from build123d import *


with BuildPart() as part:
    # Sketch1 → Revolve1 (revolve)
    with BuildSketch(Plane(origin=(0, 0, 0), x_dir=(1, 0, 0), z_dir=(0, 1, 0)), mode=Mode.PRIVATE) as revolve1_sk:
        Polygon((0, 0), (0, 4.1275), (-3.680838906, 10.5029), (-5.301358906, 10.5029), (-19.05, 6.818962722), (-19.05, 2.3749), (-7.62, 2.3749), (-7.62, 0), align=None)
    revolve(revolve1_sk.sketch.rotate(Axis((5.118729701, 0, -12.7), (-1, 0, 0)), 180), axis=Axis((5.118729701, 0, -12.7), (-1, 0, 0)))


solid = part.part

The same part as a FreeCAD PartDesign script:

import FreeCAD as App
import Part
import Sketcher
from FreeCAD import Vector
Q = App.Units.Quantity

doc = App.newDocument("Part")
body = doc.addObject("PartDesign::Body", "Body")

# Sketch on XZ plane
sketch1 = body.newObject("Sketcher::SketchObject", "Sketch")
sketch1.AttachmentSupport = (doc.getObject("XZ_Plane"), [""])
sketch1.MapMode = "FlatFace"
sketch1.addGeometry([
    Part.LineSegment(Vector(0, 0, 0), Vector(0, -4.1, 0)),  # 0
    Part.LineSegment(Vector(0, -4.1, 0), Vector(-3.7, -10.5, 0)),  # 1
    Part.LineSegment(Vector(-3.7, -10.5, 0), Vector(-5.3, -10.5, 0)),  # 2
    Part.LineSegment(Vector(-5.3, -10.5, 0), Vector(-19.1, -6.8, 0)),  # 3
    Part.LineSegment(Vector(-19.1, -6.8, 0), Vector(-19.1, -2.4, 0)),  # 4
    Part.LineSegment(Vector(-19.1, -2.4, 0), Vector(-7.6, -2.4, 0)),  # 5
    Part.LineSegment(Vector(-7.6, -2.4, 0), Vector(-7.6, 0, 0)),  # 6
    Part.LineSegment(Vector(-7.6, 0, 0), Vector(0, 0, 0)),  # 7
], False)
sketch1.addGeometry(Part.LineSegment(Vector(0, -12.7, 0), Vector(-19.1, -12.7, 0)), True)  # axis
sketch1.addConstraint([
    Sketcher.Constraint("Coincident", 0, 2, 1, 1),
    Sketcher.Constraint("Coincident", 1, 2, 2, 1),
    Sketcher.Constraint("Coincident", 2, 2, 3, 1),
    Sketcher.Constraint("Coincident", 3, 2, 4, 1),
    Sketcher.Constraint("Coincident", 4, 2, 5, 1),
    Sketcher.Constraint("Coincident", 5, 2, 6, 1),
    Sketcher.Constraint("Coincident", 6, 2, 7, 1),
    Sketcher.Constraint("Coincident", 7, 2, 0, 1),
    Sketcher.Constraint("Vertical", 0),
    Sketcher.Constraint("Horizontal", 2),
    Sketcher.Constraint("Vertical", 4),
    Sketcher.Constraint("Horizontal", 5),
    Sketcher.Constraint("Vertical", 6),
    Sketcher.Constraint("Horizontal", 7),
    Sketcher.Constraint("Horizontal", 8),
    Sketcher.Constraint("Coincident", 7, 2, -1, 1),
    Sketcher.Constraint("PointOnObject", 8, 1, -2),
    Sketcher.Constraint("Vertical", 4, 2, 8, 2),
    Sketcher.Constraint("DistanceX", 7, 1, 7, 2, Q("0.3 in")),
    Sketcher.Constraint("Angle", 1, Q("-120 deg")),
    Sketcher.Constraint("Angle", 3, Q("165 deg")),
    Sketcher.Constraint("DistanceX", 5, 1, 5, 2, Q("0.45 in")),
    Sketcher.Constraint("DistanceY", 8, 1, -1, 1, Q("0.5 in")),
    Sketcher.Constraint("DistanceY", 2, 2, 4, 2, Q("0.32 in")),
    Sketcher.Constraint("DistanceX", 2, 2, 2, 1, Q("0.0638 in")),
    Sketcher.Constraint("DistanceY", 0, 2, 0, 1, Q("0.1625 in")),
    Sketcher.Constraint("DistanceY", 6, 1, 6, 2, Q("0.0935 in")),
])
revolution = body.newObject("PartDesign::Revolution", "Revolution")
revolution.Profile = sketch1
revolution.ReferenceAxis = (sketch1, ["Axis0"])
revolution.Angle = 360

doc.recompute()
